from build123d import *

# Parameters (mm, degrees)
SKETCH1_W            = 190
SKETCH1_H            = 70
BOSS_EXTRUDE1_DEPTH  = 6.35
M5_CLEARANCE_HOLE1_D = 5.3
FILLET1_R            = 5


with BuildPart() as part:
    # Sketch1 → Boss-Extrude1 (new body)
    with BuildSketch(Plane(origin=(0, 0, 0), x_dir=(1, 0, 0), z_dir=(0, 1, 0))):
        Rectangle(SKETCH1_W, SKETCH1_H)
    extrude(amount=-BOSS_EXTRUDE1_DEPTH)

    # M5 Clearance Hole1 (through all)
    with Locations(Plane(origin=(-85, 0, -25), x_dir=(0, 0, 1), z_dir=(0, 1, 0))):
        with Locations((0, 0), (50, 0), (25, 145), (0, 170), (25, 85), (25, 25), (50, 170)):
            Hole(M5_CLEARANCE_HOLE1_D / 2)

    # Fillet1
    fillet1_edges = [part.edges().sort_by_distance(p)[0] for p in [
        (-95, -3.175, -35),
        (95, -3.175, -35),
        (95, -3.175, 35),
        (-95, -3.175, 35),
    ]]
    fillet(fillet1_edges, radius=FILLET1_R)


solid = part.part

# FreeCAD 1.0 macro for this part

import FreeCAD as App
import Part
import Sketcher
from FreeCAD import Vector
Q = App.Units.Quantity


def edges_at(feature, points):
    """Names of the edges that pass closest to the given points."""
    edges = feature.Shape.Edges
    near = lambda p: min(range(len(edges)), key=lambda i: edges[i].distToShape(Part.Vertex(*p))[0])
    return sorted({f"Edge{near(p) + 1}" for p in points})

doc = App.newDocument("Part")
params = doc.addObject("Spreadsheet::Sheet", "Params")
for row, (alias, value) in enumerate([
    ("sketch1_width", "190 mm"),
    ("sketch1_height", "70 mm"),
    ("pad1_length", "6.35 mm"),
    ("sketch2_diameter", "5.3 mm"),
    ("hole_diameter", "5.3 mm"),
    ("fillet_radius", "5 mm"),
], start=1):
    params.set(f"A{row}", alias)
    params.set(f"B{row}", "=" + value)
    params.setAlias(f"B{row}", alias)

body = doc.addObject("PartDesign::Body", "Body")

sketch1 = body.newObject("Sketcher::SketchObject", "Sketch")
sketch1.AttachmentSupport = (doc.getObject("XZ_Plane"), [""])
sketch1.MapMode = "FlatFace"
sketch1.addGeometry([
    Part.LineSegment(Vector(-95, -35, 0), Vector(-95, 35, 0)),
    Part.LineSegment(Vector(-95, 35, 0), Vector(95, 35, 0)),
    Part.LineSegment(Vector(95, 35, 0), Vector(95, -35, 0)),
    Part.LineSegment(Vector(95, -35, 0), Vector(-95, -35, 0)),
], False)
sketch1.addConstraint([
    Sketcher.Constraint("Coincident", 0, 2, 1, 1),
    Sketcher.Constraint("Coincident", 1, 2, 2, 1),
    Sketcher.Constraint("Coincident", 2, 2, 3, 1),
    Sketcher.Constraint("Coincident", 3, 2, 0, 1),
    Sketcher.Constraint("Vertical", 0),
    Sketcher.Constraint("Horizontal", 1),
    Sketcher.Constraint("Vertical", 2),
    Sketcher.Constraint("Horizontal", 3),
    Sketcher.Constraint("Symmetric", 0, 2, 2, 2, -1, 1),
    Sketcher.Constraint("DistanceX", 1, 1, 1, 2, Q("190 mm")),
    Sketcher.Constraint("DistanceY", 0, 1, 0, 2, Q("70 mm")),
])
sketch1.setExpression("Constraints[9]", "Params.sketch1_width")
sketch1.setExpression("Constraints[10]", "Params.sketch1_height")
pad1 = body.newObject("PartDesign::Pad", "Pad")
pad1.Profile = sketch1
pad1.setExpression("Length", "Params.pad1_length")

sketch2 = body.newObject("Sketcher::SketchObject", "Sketch001")
sketch2.AttachmentSupport = (doc.getObject("XZ_Plane"), [""])
sketch2.MapMode = "FlatFace"
sketch2.addGeometry([
    Part.Circle(Vector(-85, -25, 0), Vector(0, 0, 1), 2.6),
    Part.Circle(Vector(-85, 25, 0), Vector(0, 0, 1), 2.6),
    Part.Circle(Vector(60, 0, 0), Vector(0, 0, 1), 2.6),
    Part.Circle(Vector(85, -25, 0), Vector(0, 0, 1), 2.6),
    Part.Circle(Vector(0, 0, 0), Vector(0, 0, 1), 2.6),
    Part.Circle(Vector(-60, 0, 0), Vector(0, 0, 1), 2.6),
    Part.Circle(Vector(85, 25, 0), Vector(0, 0, 1), 2.6),
], False)
sketch2.addConstraint([
    Sketcher.Constraint("Coincident", 4, 3, -1, 1),
    Sketcher.Constraint("Equal", 0, 1),
    Sketcher.Constraint("Equal", 1, 2),
    Sketcher.Constraint("Equal", 2, 3),
    Sketcher.Constraint("Equal", 3, 4),
    Sketcher.Constraint("Equal", 4, 5),
    Sketcher.Constraint("Equal", 5, 6),
    Sketcher.Constraint("Symmetric", 1, 3, 3, 3, -1, 1),
    Sketcher.Constraint("Symmetric", 2, 3, 5, 3, -1, 1),
    Sketcher.Constraint("Symmetric", 0, 3, 6, 3, -1, 1),
    Sketcher.Constraint("Symmetric", 0, 3, 3, 3, -2),
    Sketcher.Constraint("PointOnObject", 2, 3, -1),
    Sketcher.Constraint("Diameter", 0, Q("5.3 mm")),
    Sketcher.Constraint("DistanceX", 0, 3, -1, 1, Q("85 mm")),
    Sketcher.Constraint("DistanceY", 0, 3, -1, 1, Q("25 mm")),
    Sketcher.Constraint("DistanceX", -1, 1, 2, 3, Q("60 mm")),
])
sketch2.setExpression("Constraints[12]", "Params.sketch2_diameter")
doc.recompute()
hole = body.newObject("PartDesign::Hole", "Hole")
hole.Profile = sketch2
hole.ThreadType = "None"
hole.setExpression("Diameter", "Params.hole_diameter")
hole.DepthType = "ThroughAll"
hole.Reversed = True
doc.recompute()

fillet = body.newObject("PartDesign::Fillet", "Fillet")
fillet.Base = (hole, edges_at(hole, [
    (-95, -3.175, -35),
    (95, -3.175, -35),
    (95, -3.175, 35),
    (-95, -3.175, 35),
]))
fillet.setExpression("Radius", "Params.fillet_radius")

doc.recompute()
